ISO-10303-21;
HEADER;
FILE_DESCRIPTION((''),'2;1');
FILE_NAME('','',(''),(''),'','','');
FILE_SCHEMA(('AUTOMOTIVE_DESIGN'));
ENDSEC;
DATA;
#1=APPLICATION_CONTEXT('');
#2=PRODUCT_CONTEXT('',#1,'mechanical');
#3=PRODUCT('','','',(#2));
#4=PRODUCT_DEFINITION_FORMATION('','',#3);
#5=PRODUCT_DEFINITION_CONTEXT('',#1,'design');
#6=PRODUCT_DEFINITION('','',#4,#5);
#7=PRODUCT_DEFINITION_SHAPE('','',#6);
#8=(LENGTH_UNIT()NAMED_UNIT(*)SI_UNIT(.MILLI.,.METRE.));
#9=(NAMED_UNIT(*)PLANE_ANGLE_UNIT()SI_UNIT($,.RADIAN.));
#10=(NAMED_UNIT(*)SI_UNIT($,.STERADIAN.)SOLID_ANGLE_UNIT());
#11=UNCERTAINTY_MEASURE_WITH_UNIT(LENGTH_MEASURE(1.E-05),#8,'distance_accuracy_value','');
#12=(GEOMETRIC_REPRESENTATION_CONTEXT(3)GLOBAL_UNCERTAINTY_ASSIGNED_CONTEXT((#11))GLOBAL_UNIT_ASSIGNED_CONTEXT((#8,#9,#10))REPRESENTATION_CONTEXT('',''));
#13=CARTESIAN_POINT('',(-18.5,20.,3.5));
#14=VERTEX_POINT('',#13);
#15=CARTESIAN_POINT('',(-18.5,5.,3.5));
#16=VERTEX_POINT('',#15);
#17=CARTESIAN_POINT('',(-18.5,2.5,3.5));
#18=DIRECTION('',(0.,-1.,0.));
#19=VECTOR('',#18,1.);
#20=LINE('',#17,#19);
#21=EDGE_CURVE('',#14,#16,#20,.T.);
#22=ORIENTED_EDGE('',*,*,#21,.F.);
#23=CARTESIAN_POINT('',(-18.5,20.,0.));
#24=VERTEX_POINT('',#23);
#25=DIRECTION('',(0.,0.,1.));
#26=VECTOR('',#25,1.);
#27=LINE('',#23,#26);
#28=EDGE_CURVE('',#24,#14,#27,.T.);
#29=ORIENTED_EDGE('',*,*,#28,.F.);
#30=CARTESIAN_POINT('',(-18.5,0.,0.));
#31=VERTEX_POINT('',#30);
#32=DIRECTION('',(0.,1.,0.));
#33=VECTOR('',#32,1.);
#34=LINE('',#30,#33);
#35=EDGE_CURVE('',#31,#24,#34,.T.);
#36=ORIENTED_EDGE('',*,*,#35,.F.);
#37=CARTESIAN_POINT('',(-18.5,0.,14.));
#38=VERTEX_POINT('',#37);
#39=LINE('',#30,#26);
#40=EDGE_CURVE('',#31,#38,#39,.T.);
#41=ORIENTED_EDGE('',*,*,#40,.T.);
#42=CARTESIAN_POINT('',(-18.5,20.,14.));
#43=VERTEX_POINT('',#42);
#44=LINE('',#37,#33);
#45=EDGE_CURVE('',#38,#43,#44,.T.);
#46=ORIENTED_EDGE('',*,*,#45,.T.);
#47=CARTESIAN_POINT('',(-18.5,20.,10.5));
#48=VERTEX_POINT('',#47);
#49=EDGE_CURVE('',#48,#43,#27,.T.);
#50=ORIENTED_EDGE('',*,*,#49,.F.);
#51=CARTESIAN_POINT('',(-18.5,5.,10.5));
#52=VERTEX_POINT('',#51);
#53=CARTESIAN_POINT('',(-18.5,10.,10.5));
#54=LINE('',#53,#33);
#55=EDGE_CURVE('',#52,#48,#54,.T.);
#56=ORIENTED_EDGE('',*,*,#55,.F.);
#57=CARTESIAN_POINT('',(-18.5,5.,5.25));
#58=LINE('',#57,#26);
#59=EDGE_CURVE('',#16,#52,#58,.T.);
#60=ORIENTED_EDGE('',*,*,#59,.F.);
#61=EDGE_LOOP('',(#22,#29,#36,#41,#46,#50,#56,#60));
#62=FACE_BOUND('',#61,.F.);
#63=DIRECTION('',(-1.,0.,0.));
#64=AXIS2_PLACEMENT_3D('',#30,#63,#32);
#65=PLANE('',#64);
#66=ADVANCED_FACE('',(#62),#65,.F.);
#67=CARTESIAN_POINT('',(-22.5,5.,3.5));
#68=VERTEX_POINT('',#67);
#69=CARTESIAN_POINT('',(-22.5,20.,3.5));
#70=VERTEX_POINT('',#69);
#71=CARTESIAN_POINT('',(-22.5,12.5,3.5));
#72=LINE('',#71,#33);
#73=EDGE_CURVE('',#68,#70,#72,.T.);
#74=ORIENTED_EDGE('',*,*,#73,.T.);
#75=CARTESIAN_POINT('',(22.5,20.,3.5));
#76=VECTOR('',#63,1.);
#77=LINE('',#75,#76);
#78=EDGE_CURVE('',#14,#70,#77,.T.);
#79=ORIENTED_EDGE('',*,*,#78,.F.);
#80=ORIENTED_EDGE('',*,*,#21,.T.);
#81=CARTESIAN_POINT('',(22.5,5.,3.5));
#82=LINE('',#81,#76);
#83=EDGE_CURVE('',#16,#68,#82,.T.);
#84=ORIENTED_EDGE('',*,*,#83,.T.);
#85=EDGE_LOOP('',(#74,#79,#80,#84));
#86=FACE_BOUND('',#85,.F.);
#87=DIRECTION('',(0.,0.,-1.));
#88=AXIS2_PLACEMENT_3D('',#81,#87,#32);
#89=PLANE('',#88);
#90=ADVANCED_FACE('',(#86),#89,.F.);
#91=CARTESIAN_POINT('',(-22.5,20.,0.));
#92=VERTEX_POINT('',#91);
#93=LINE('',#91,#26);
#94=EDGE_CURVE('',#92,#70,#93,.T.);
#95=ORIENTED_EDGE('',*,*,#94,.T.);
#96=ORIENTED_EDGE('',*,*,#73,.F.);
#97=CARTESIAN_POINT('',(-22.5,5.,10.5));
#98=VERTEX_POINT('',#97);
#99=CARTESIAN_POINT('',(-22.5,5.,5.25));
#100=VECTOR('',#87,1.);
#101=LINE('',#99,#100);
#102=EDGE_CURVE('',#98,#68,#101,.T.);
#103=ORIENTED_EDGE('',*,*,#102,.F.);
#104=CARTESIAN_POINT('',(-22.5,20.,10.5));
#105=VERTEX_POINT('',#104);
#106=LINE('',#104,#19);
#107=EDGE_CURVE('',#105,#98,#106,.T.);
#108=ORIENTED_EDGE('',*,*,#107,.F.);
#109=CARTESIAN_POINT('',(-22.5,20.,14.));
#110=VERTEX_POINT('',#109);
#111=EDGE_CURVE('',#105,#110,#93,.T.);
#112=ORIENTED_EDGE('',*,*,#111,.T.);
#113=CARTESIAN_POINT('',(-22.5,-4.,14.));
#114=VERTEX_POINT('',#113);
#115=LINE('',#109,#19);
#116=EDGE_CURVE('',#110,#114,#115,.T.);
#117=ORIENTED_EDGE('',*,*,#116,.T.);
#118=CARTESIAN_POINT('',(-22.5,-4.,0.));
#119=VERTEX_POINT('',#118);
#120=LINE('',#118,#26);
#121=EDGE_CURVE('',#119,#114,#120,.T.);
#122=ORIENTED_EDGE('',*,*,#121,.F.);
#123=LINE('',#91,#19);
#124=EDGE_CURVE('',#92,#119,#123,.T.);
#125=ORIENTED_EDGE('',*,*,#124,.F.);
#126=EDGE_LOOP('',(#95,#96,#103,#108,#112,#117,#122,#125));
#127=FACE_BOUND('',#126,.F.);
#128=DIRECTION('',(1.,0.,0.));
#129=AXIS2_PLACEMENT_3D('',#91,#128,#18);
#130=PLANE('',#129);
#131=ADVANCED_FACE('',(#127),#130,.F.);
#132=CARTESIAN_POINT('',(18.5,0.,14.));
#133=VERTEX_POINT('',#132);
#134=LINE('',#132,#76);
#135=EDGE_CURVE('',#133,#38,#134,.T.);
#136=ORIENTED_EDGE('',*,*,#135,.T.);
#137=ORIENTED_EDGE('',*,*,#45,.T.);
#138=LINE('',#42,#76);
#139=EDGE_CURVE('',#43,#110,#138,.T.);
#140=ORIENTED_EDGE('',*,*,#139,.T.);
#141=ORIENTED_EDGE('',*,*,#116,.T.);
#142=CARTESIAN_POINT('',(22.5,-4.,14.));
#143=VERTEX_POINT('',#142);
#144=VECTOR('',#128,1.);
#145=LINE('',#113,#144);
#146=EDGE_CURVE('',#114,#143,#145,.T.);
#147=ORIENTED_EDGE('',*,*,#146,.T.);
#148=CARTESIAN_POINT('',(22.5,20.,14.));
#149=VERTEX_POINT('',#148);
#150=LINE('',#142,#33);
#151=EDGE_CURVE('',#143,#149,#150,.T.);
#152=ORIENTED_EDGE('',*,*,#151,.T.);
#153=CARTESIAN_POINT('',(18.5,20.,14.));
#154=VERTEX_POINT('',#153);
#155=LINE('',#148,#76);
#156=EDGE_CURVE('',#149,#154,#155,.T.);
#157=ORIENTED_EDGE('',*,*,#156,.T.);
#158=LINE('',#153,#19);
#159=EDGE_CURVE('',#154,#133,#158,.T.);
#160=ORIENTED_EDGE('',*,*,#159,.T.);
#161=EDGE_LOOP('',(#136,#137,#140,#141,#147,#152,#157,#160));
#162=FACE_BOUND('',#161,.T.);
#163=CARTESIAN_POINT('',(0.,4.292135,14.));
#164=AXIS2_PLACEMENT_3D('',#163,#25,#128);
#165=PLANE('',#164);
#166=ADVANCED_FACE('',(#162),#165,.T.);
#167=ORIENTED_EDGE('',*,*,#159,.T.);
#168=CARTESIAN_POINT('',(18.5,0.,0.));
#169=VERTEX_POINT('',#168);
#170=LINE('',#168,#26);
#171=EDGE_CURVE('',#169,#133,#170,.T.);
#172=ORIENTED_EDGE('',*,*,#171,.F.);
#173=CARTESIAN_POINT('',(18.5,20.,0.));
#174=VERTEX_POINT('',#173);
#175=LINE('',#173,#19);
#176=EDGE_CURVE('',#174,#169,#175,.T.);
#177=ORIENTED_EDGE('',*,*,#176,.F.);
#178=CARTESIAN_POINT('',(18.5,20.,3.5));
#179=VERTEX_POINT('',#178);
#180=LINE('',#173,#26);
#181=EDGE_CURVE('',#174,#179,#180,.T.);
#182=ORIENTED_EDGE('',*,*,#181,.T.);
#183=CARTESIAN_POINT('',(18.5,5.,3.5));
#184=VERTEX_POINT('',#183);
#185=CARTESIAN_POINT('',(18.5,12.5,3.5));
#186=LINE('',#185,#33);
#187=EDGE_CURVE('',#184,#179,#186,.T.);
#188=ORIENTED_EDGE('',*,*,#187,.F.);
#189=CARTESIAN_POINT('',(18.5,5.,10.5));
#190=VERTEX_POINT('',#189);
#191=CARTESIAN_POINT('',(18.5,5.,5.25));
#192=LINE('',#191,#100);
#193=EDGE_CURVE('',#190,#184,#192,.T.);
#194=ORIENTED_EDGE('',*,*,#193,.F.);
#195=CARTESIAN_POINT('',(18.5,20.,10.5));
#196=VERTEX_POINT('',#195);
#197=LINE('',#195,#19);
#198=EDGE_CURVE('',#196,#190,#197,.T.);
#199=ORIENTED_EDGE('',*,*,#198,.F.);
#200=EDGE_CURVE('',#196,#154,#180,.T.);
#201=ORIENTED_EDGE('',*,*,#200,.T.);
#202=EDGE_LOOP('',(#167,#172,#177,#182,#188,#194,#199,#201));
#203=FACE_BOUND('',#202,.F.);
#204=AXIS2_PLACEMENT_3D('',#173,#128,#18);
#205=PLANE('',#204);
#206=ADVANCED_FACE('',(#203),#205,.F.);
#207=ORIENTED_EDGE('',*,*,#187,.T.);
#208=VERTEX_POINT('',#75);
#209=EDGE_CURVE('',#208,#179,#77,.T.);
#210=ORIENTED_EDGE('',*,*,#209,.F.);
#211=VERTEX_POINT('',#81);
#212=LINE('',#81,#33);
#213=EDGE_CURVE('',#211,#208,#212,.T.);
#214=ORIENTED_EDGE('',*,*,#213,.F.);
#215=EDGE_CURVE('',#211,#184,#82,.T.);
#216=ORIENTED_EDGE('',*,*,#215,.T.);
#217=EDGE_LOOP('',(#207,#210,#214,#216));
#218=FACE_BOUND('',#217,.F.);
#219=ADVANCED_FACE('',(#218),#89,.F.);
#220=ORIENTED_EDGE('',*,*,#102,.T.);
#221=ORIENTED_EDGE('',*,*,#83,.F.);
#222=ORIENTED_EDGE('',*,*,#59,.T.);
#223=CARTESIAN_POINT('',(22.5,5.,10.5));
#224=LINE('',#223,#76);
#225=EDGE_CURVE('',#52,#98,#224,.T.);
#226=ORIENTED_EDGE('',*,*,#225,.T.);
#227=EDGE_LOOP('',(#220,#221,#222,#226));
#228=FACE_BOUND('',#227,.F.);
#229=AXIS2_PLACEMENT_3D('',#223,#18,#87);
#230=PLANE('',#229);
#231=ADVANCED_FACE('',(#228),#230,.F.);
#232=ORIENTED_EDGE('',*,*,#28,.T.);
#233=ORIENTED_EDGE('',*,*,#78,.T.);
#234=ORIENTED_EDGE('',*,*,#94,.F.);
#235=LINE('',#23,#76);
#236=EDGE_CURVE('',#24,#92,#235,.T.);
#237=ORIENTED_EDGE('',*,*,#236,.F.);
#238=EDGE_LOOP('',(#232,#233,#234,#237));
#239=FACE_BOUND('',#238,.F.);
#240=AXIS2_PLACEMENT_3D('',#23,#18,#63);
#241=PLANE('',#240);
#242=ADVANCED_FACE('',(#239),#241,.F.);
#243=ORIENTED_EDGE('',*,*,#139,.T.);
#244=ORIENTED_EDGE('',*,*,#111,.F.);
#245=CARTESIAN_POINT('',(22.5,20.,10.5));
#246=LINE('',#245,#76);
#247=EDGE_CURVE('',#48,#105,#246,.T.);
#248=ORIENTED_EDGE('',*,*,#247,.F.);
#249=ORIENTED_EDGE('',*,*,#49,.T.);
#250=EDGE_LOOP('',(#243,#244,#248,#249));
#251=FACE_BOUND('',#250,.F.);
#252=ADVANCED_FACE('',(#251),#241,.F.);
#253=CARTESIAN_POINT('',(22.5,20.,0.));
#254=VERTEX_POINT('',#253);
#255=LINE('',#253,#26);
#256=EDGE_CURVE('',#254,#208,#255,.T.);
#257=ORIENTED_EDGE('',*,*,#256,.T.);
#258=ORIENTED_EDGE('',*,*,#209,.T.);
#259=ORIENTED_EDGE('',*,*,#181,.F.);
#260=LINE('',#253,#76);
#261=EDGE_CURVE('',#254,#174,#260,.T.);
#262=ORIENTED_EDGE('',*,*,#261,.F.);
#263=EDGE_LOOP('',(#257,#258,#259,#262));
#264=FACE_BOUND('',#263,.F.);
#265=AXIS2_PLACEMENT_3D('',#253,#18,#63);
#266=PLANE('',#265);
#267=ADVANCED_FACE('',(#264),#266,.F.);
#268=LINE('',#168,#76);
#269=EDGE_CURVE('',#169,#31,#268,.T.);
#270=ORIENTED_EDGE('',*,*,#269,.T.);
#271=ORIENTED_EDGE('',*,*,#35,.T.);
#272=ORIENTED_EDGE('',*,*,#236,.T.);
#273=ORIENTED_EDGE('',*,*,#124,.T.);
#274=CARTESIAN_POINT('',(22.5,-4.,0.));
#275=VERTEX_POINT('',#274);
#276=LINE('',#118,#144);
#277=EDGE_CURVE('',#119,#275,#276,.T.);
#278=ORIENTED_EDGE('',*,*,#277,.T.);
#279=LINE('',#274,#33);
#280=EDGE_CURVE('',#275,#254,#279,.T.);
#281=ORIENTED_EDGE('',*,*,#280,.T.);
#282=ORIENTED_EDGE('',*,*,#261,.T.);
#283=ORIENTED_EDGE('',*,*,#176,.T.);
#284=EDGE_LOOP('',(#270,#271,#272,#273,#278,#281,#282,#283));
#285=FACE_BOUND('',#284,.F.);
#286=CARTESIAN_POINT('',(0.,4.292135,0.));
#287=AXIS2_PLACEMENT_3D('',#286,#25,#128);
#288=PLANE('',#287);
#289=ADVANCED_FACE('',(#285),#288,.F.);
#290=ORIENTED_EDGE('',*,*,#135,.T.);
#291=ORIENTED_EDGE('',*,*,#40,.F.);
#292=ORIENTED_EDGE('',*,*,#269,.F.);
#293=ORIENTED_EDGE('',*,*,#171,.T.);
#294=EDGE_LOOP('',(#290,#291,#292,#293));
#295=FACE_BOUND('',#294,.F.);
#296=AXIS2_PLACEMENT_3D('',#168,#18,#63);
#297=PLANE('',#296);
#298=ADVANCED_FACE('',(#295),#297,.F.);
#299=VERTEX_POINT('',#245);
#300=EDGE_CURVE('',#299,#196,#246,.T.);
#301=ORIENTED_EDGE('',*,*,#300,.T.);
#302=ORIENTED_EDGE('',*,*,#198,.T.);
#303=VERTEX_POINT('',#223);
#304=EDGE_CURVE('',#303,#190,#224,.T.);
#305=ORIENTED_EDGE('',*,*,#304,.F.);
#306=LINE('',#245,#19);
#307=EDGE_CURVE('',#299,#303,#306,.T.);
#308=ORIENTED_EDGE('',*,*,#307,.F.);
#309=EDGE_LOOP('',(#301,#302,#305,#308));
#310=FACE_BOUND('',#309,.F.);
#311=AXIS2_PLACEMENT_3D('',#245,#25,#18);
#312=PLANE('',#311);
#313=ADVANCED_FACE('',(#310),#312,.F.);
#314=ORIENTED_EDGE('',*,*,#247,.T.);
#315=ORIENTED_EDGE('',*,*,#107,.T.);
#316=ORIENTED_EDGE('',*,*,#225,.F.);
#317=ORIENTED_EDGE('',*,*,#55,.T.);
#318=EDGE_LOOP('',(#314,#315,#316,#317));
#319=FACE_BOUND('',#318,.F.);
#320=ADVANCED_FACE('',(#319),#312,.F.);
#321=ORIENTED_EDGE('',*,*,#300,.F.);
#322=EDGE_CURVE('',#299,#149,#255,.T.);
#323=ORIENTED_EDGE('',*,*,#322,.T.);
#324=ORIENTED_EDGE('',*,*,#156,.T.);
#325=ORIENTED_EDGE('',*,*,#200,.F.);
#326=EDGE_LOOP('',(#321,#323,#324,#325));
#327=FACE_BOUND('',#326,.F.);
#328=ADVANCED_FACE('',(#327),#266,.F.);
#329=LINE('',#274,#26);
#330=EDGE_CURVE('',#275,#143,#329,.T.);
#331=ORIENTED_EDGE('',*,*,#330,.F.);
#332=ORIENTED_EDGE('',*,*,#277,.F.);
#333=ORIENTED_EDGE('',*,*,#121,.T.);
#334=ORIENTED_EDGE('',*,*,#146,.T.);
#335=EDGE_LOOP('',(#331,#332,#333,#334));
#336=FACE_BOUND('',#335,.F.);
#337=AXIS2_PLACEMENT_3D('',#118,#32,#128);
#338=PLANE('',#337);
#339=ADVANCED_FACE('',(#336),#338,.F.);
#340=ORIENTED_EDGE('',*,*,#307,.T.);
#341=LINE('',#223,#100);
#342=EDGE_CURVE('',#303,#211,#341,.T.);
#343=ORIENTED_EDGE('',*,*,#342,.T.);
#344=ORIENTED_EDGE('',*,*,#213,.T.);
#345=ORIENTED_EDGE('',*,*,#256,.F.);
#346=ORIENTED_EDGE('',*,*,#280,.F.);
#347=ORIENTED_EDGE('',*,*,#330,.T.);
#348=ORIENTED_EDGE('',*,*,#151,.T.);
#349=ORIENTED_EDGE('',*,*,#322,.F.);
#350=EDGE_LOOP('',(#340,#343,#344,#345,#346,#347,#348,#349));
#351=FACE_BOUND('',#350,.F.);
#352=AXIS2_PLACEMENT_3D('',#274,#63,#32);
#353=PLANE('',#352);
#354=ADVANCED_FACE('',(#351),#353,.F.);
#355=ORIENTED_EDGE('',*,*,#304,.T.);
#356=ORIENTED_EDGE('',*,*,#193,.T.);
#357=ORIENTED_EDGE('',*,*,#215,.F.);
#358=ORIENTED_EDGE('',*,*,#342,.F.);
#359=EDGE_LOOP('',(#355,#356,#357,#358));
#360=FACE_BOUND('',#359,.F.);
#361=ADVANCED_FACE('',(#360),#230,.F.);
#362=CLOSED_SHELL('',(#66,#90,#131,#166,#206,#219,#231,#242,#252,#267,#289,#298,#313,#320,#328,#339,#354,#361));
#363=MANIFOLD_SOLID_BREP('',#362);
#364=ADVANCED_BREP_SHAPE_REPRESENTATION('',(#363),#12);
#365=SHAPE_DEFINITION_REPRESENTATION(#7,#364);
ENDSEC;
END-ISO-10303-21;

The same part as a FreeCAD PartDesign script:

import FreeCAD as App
import Part
import Sketcher

V = App.Vector
Q = App.Units.Quantity


def add_polygon(sketch, points):
    """Adds a closed chain of lines whose ends are joined by coincident constraints."""
    first, n = sketch.GeometryCount, len(points)
    for a, b in zip(points, points[1:] + points[:1]):
        sketch.addGeometry(Part.LineSegment(App.Vector(*a, 0), App.Vector(*b, 0)), False)
    for i in range(n):
        sketch.addConstraint(Sketcher.Constraint("Coincident", first + i, 2, first + (i + 1) % n, 1))

doc = App.newDocument("Part")
body = doc.addObject("PartDesign::Body", "Body")

sketch1 = body.newObject("Sketcher::SketchObject", "Sketch")
sketch1.AttachmentSupport = (doc.getObject("XY_Plane"), [""])
sketch1.MapMode = "FlatFace"
add_polygon(sketch1, [(18.5, 0), (-18.5, 0), (-18.5, 20), (-22.5, 20), (-22.5, -4), (22.5, -4), (22.5, 20), (18.5, 20)])
sketch1.addConstraint([
    Sketcher.Constraint("Horizontal", 0),
    Sketcher.Constraint("Vertical", 1),
    Sketcher.Constraint("Horizontal", 2),
    Sketcher.Constraint("Vertical", 3),
    Sketcher.Constraint("Horizontal", 4),
    Sketcher.Constraint("Vertical", 5),
    Sketcher.Constraint("Horizontal", 6),
    Sketcher.Constraint("Vertical", 7),
    Sketcher.Constraint("Symmetric", 0, 2, 7, 2, -1, 1),
    Sketcher.Constraint("Symmetric", 2, 2, 5, 2, -2),
    Sketcher.Constraint("DistanceX", 0, 2, 0, 1, Q("37 mm")),
    Sketcher.Constraint("DistanceX", 2, 2, 2, 1, Q("4 mm")),
    Sketcher.Constraint("DistanceY", 1, 1, 1, 2, Q("20 mm")),
    Sketcher.Constraint("DistanceY", 3, 2, 3, 1, Q("24 mm")),
])
pad1 = body.newObject("PartDesign::Pad", "Pad")
pad1.Profile = sketch1
pad1.Length = 14

sketch2 = body.newObject("Sketcher::SketchObject", "Sketch001")
sketch2.AttachmentSupport = (doc.getObject("YZ_Plane"), [""])
sketch2.MapMode = "FlatFace"
sketch2.AttachmentOffset = App.Placement(V(0, 0, 22.5), App.Rotation())
add_polygon(sketch2, [(20, 4), (20, 10), (5, 10), (5, 4)])
sketch2.addConstraint([
    Sketcher.Constraint("Vertical", 0),
    Sketcher.Constraint("Horizontal", 1),
    Sketcher.Constraint("Vertical", 2),
    Sketcher.Constraint("Horizontal", 3),
    Sketcher.Constraint("DistanceX", 1, 2, 1, 1, Q("15 mm")),
    Sketcher.Constraint("DistanceY", 0, 1, 0, 2, Q("7 mm")),
    Sketcher.Constraint("DistanceX", -1, 1, 0, 2, Q("20 mm")),
    Sketcher.Constraint("DistanceY", -1, 1, 0, 2, Q("10.5 mm")),
])
pocket1 = body.newObject("PartDesign::Pocket", "Pocket")
pocket1.Profile = sketch2
pocket1.Length = 100

doc.recompute()
